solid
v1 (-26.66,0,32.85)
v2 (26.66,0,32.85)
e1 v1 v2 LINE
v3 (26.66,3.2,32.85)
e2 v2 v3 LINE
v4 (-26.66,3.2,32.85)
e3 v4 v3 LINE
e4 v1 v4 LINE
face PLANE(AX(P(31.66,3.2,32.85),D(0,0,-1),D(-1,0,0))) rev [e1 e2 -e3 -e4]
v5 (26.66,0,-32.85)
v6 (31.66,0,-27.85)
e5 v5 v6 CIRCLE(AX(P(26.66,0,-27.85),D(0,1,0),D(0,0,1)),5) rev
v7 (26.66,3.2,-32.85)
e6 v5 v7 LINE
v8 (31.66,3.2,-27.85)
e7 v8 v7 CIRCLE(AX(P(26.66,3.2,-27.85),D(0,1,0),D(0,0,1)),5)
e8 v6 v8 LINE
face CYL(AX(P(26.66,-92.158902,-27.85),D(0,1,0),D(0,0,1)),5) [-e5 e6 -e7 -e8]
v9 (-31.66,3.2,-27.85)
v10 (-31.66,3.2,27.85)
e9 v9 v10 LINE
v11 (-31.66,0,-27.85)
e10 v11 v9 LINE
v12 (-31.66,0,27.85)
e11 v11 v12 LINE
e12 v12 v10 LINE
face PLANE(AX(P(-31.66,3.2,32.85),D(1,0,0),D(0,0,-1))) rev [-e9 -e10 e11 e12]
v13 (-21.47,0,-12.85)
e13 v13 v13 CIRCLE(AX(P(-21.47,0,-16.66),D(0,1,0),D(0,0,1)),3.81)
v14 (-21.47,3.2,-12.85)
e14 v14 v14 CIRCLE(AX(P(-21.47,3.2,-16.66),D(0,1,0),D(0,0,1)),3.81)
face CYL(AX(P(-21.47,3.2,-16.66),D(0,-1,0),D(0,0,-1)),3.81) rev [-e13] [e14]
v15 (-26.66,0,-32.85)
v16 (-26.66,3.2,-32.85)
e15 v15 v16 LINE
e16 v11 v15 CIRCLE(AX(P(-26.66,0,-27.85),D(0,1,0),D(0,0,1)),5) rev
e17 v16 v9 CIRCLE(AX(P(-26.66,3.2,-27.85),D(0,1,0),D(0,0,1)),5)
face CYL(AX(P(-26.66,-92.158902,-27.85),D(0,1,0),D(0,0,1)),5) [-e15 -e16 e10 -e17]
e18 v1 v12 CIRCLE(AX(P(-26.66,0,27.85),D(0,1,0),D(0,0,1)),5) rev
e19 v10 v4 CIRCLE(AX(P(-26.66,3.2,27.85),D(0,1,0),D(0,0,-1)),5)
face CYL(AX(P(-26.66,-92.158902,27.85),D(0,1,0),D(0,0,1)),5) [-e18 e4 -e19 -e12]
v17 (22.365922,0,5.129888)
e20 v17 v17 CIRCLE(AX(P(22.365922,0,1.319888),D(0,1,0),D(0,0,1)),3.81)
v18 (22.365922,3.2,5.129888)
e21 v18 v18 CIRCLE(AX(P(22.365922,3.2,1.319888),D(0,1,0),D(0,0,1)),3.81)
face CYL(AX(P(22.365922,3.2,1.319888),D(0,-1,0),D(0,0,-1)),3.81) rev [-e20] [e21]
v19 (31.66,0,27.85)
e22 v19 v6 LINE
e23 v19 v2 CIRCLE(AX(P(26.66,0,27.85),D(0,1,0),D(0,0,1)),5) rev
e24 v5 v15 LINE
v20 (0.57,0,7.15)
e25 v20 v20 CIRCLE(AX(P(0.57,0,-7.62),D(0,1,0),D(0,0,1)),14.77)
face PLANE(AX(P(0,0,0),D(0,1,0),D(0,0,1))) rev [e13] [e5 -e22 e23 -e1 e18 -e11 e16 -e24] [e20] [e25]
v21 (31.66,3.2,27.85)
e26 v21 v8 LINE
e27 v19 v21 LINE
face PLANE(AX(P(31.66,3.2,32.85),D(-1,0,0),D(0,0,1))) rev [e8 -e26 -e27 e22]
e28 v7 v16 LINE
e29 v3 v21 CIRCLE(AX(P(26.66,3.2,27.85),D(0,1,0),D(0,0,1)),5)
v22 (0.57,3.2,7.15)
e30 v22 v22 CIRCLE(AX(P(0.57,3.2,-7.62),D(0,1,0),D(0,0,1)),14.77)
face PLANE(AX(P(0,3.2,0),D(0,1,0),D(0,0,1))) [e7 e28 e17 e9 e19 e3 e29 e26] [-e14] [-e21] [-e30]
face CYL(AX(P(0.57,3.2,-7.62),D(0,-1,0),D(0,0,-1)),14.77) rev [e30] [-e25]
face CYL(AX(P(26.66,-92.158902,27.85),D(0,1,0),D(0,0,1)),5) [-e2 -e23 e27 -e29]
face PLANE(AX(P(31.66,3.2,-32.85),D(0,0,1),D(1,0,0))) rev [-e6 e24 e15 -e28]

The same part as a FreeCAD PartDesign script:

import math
import FreeCAD as App
import Part
import Sketcher
Q = App.Units.Quantity

doc = App.newDocument("Part")
params = doc.addObject("Spreadsheet::Sheet", "Params")
for row, (alias, value) in enumerate([
    ("sketch1_diameter", "7.62 mm"),
    ("sketch1_diameter2", "29.54 mm"),
    ("sketch1_height", "65.7 mm"),
    ("sketch1_width", "63.32 mm"),
    ("pad1_length", "3.2 mm"),
    ("sketch2_radius", "5 mm"),
    ("sketch2_height", "55.7 mm"),
    ("sketch2_width", "83.58 mm"),
    ("sketch2_width2", "53.32 mm"),
    ("sketch2_height2", "85.96 mm"),
    ("pocket1_length", "3.2 mm"),
], start=1):
    params.set(f"A{row}", alias)
    params.set(f"B{row}", "=" + value)
    params.setAlias(f"B{row}", alias)

body = doc.addObject("PartDesign::Body", "Body")

# Sketch on XZ plane
sketch1 = doc.addObject("Sketcher::SketchObject", "Sketch")
body.addObject(sketch1)
sketch1.AttachmentSupport = (doc.XZ_Plane, [""])
sketch1.MapMode = "FlatFace"
sketch1.addGeometry([
    Part.LineSegment(App.Vector(-31.7, -32.9, 0), App.Vector(-31.7, 32.9, 0)),  # 0
    Part.LineSegment(App.Vector(-31.7, 32.9, 0), App.Vector(31.7, 32.9, 0)),  # 1
    Part.LineSegment(App.Vector(31.7, 32.9, 0), App.Vector(31.7, -32.9, 0)),  # 2
    Part.LineSegment(App.Vector(31.7, -32.9, 0), App.Vector(-31.7, -32.9, 0)),  # 3
    Part.Circle(App.Vector(22.4, 1.3, 0), App.Vector(0, 0, 1), 3.8),  # 4
    Part.Circle(App.Vector(0.6, -7.6, 0), App.Vector(0, 0, 1), 14.8),  # 5
    Part.Circle(App.Vector(-21.5, -16.7, 0), App.Vector(0, 0, 1), 3.8),  # 6
], False)
sketch1.addConstraint([
    Sketcher.Constraint("Coincident", 0, 2, 1, 1),
    Sketcher.Constraint("Coincident", 1, 2, 2, 1),
    Sketcher.Constraint("Coincident", 2, 2, 3, 1),
    Sketcher.Constraint("Coincident", 3, 2, 0, 1),
    Sketcher.Constraint("Vertical", 0),
    Sketcher.Constraint("Horizontal", 1),
    Sketcher.Constraint("Vertical", 2),
    Sketcher.Constraint("Horizontal", 3),
    Sketcher.Constraint("Equal", 4, 6),
    Sketcher.Constraint("Symmetric", 0, 2, 2, 2, -1, 1),
    Sketcher.Constraint("Diameter", 4, Q("7.62 mm")),
    Sketcher.Constraint("Diameter", 5, Q("29.54 mm")),
    Sketcher.Constraint("DistanceY", 0, 1, 0, 2, Q("65.7 mm")),
    Sketcher.Constraint("DistanceX", 1, 1, 1, 2, Q("63.32 mm")),
    Sketcher.Constraint("DistanceX", -1, 1, 5, 3, Q("0.57 mm")),
    Sketcher.Constraint("DistanceY", 5, 3, -1, 1, Q("7.62 mm")),
    Sketcher.Constraint("DistanceX", 6, 3, -1, 1, Q("21.47 mm")),
    Sketcher.Constraint("DistanceY", 6, 3, -1, 1, Q("16.66 mm")),
    Sketcher.Constraint("DistanceX", -1, 1, 4, 3, Q("22.365922 mm")),
    Sketcher.Constraint("DistanceY", -1, 1, 4, 3, Q("1.319888 mm")),
])
sketch1.setExpression("Constraints[10]", "Params.sketch1_diameter")
sketch1.setExpression("Constraints[11]", "Params.sketch1_diameter2")
sketch1.setExpression("Constraints[12]", "Params.sketch1_height")
sketch1.setExpression("Constraints[13]", "Params.sketch1_width")
pad1 = doc.addObject("PartDesign::Pad", "Pad")
body.addObject(pad1)
pad1.Profile = sketch1
pad1.setExpression("Length", "Params.pad1_length")
pad1.Reversed = True

# Sketch on XZ plane
sketch2 = doc.addObject("Sketcher::SketchObject", "Sketch001")
body.addObject(sketch2)
sketch2.AttachmentSupport = (doc.XZ_Plane, [""])
sketch2.MapMode = "FlatFace"
sketch2.AttachmentOffset = App.Placement(App.Vector(0, 0, -3.2), App.Rotation())
sketch2.addGeometry([
    Part.LineSegment(App.Vector(-42, -43, 0), App.Vector(-42, 43, 0)),  # 0
    Part.LineSegment(App.Vector(-42, 43, 0), App.Vector(42, 43, 0)),  # 1
    Part.LineSegment(App.Vector(42, 43, 0), App.Vector(42, -43, 0)),  # 2
    Part.LineSegment(App.Vector(42, -43, 0), App.Vector(-42, -43, 0)),  # 3
    Part.ArcOfCircle(Part.Circle(App.Vector(27, 28, 0), App.Vector(0, 0, 1), 5), math.radians(0), math.radians(90)),  # 4
    Part.LineSegment(App.Vector(27, 33, 0), App.Vector(-27, 33, 0)),  # 5
    Part.ArcOfCircle(Part.Circle(App.Vector(-27, 28, 0), App.Vector(0, 0, 1), 5), math.radians(90), math.radians(180)),  # 6
    Part.LineSegment(App.Vector(-32, 28, 0), App.Vector(-32, -28, 0)),  # 7
    Part.ArcOfCircle(Part.Circle(App.Vector(-27, -28, 0), App.Vector(0, 0, 1), 5), math.radians(180), math.radians(270)),  # 8
    Part.LineSegment(App.Vector(-27, -33, 0), App.Vector(27, -33, 0)),  # 9
    Part.ArcOfCircle(Part.Circle(App.Vector(27, -28, 0), App.Vector(0, 0, 1), 5), math.radians(-90), math.radians(0)),  # 10
    Part.LineSegment(App.Vector(32, -28, 0), App.Vector(32, 28, 0)),  # 11
], False)
sketch2.addConstraint([
    Sketcher.Constraint("Coincident", 0, 2, 1, 1),
    Sketcher.Constraint("Coincident", 1, 2, 2, 1),
    Sketcher.Constraint("Coincident", 2, 2, 3, 1),
    Sketcher.Constraint("Coincident", 3, 2, 0, 1),
    Sketcher.Constraint("Tangent", 4, 2, 5, 1),
    Sketcher.Constraint("Tangent", 5, 2, 6, 1),
    Sketcher.Constraint("Tangent", 6, 2, 7, 1),
    Sketcher.Constraint("Tangent", 7, 2, 8, 1),
    Sketcher.Constraint("Tangent", 8, 2, 9, 1),
    Sketcher.Constraint("Tangent", 9, 2, 10, 1),
    Sketcher.Constraint("Tangent", 10, 2, 11, 1),
    Sketcher.Constraint("Tangent", 11, 2, 4, 1),
    Sketcher.Constraint("Vertical", 0),
    Sketcher.Constraint("Horizontal", 1),
    Sketcher.Constraint("Vertical", 2),
    Sketcher.Constraint("Horizontal", 3),
    Sketcher.Constraint("Horizontal", 5),
    Sketcher.Constraint("Vertical", 7),
    Sketcher.Constraint("Horizontal", 9),
    Sketcher.Constraint("Vertical", 11),
    Sketcher.Constraint("Equal", 4, 6),
    Sketcher.Constraint("Equal", 6, 8),
    Sketcher.Constraint("Equal", 8, 10),
    Sketcher.Constraint("Symmetric", 4, 3, 8, 3, -1, 1),
    Sketcher.Constraint("Symmetric", 0, 2, 2, 2, -1, 1),
    Sketcher.Constraint("Radius", 4, Q("5 mm")),
    Sketcher.Constraint("DistanceY", 7, 2, 7, 1, Q("55.7 mm")),
    Sketcher.Constraint("DistanceX", 1, 1, 1, 2, Q("83.58 mm")),
    Sketcher.Constraint("DistanceX", 5, 2, 5, 1, Q("53.32 mm")),
    Sketcher.Constraint("DistanceY", 0, 1, 0, 2, Q("85.96 mm")),
])
sketch2.setExpression("Constraints[25]", "Params.sketch2_radius")
sketch2.setExpression("Constraints[26]", "Params.sketch2_height")
sketch2.setExpression("Constraints[27]", "Params.sketch2_width")
sketch2.setExpression("Constraints[28]", "Params.sketch2_width2")
sketch2.setExpression("Constraints[29]", "Params.sketch2_height2")
pocket1 = doc.addObject("PartDesign::Pocket", "Pocket")
body.addObject(pocket1)
pocket1.Profile = sketch2
pocket1.setExpression("Length", "Params.pocket1_length")
pocket1.Reversed = True

doc.recompute()
